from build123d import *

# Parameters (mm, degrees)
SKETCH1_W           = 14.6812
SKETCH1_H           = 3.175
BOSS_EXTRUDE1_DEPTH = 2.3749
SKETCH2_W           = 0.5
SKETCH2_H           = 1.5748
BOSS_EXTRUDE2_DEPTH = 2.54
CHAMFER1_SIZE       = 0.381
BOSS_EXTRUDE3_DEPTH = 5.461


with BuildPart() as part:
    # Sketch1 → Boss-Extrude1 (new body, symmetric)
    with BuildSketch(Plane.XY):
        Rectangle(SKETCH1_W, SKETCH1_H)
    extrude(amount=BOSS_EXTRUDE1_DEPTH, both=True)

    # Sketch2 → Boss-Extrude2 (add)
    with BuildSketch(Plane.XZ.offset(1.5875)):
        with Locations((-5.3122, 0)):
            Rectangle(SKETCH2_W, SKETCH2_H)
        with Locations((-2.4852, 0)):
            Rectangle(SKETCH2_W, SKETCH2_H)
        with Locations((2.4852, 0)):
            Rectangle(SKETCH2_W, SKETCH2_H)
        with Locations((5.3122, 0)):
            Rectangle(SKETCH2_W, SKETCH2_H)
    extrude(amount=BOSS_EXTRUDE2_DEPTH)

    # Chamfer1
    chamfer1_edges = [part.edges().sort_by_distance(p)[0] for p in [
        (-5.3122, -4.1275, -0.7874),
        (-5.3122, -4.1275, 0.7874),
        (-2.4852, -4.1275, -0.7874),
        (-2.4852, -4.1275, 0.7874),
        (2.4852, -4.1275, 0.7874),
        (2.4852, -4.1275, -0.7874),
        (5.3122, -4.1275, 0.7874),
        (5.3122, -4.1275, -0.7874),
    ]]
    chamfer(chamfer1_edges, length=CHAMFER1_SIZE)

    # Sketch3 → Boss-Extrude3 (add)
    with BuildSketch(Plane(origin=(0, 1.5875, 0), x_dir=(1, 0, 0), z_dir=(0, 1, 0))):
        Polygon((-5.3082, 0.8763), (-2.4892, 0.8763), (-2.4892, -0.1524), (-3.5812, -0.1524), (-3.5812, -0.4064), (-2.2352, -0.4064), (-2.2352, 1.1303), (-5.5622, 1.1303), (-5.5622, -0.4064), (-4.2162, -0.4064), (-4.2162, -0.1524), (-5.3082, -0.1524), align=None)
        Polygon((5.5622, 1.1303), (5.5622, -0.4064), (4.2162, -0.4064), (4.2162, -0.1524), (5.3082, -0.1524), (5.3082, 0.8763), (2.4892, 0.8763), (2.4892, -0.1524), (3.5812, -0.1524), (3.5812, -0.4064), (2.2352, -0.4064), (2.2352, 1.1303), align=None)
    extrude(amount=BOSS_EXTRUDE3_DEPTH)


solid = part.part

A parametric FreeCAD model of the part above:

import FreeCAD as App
import Part
import Sketcher

V = App.Vector
Q = App.Units.Quantity


def edges_at(feature, points):
    """Names of the edges that pass closest to the given points."""
    edges = feature.Shape.Edges
    near = lambda p: min(range(len(edges)), key=lambda i: edges[i].distToShape(Part.Vertex(*p))[0])
    return sorted({f"Edge{near(p) + 1}" for p in points})


def add_polygon(sketch, points):
    """Adds a closed chain of lines whose ends are joined by coincident constraints."""
    first, n = sketch.GeometryCount, len(points)
    for a, b in zip(points, points[1:] + points[:1]):
        sketch.addGeometry(Part.LineSegment(App.Vector(*a, 0), App.Vector(*b, 0)), False)
    for i in range(n):
        sketch.addConstraint(Sketcher.Constraint("Coincident", first + i, 2, first + (i + 1) % n, 1))

doc = App.newDocument("Part")
body = doc.addObject("PartDesign::Body", "Body")

# Sketch on XY plane
sketch1 = body.newObject("Sketcher::SketchObject", "Sketch")
sketch1.AttachmentSupport = (doc.getObject("XY_Plane"), [""])
sketch1.MapMode = "FlatFace"
add_polygon(sketch1, [(-7.3, 1.6), (-7.3, -1.6), (7.3, -1.6), (7.3, 1.6)])  # lines 0-3
sketch1.addConstraint([
    Sketcher.Constraint("Vertical", 0),
    Sketcher.Constraint("Horizontal", 1),
    Sketcher.Constraint("Vertical", 2),
    Sketcher.Constraint("Horizontal", 3),
    Sketcher.Constraint("Symmetric", 0, 2, 2, 2, -1, 1),
    Sketcher.Constraint("DistanceX", 1, 1, 1, 2, Q("0.578 in")),
    Sketcher.Constraint("DistanceY", 0, 2, 0, 1, Q("0.125 in")),
])
pad1 = body.newObject("PartDesign::Pad", "Pad")
pad1.Profile = sketch1
pad1.Length = Q("0.187 in")
pad1.Midplane = True

# Sketch on XZ plane
sketch2 = body.newObject("Sketcher::SketchObject", "Sketch001")
sketch2.AttachmentSupport = (doc.getObject("XZ_Plane"), [""])
sketch2.MapMode = "FlatFace"
sketch2.AttachmentOffset = App.Placement(V(0, 0, 0.0625 * 25.4), App.Rotation())
add_polygon(sketch2, [(-5.6, 0.8), (-5.6, -0.8), (-5.1, -0.8), (-5.1, 0.8)])  # lines 0-3
add_polygon(sketch2, [(-2.7, 0.8), (-2.7, -0.8), (-2.2, -0.8), (-2.2, 0.8)])  # lines 4-7
add_polygon(sketch2, [(2.2, 0.8), (2.2, -0.8), (2.7, -0.8), (2.7, 0.8)])  # lines 8-11
add_polygon(sketch2, [(5.1, 0.8), (5.1, -0.8), (5.6, -0.8), (5.6, 0.8)])  # lines 12-15
sketch2.addConstraint([
    Sketcher.Constraint("Vertical", 0),
    Sketcher.Constraint("Horizontal", 1),
    Sketcher.Constraint("Vertical", 2),
    Sketcher.Constraint("Horizontal", 3),
    Sketcher.Constraint("Vertical", 4),
    Sketcher.Constraint("Horizontal", 5),
    Sketcher.Constraint("Vertical", 6),
    Sketcher.Constraint("Horizontal", 7),
    Sketcher.Constraint("Vertical", 8),
    Sketcher.Constraint("Horizontal", 9),
    Sketcher.Constraint("Vertical", 10),
    Sketcher.Constraint("Horizontal", 11),
    Sketcher.Constraint("Vertical", 12),
    Sketcher.Constraint("Horizontal", 13),
    Sketcher.Constraint("Vertical", 14),
    Sketcher.Constraint("Horizontal", 15),
    Sketcher.Constraint("Symmetric", 6, 2, 8, 2, -1, 1),
    Sketcher.Constraint("Symmetric", 4, 2, 10, 2, -1, 1),
    Sketcher.Constraint("Symmetric", 2, 2, 12, 2, -1, 1),
    Sketcher.Constraint("Symmetric", 0, 2, 14, 2, -1, 1),
    Sketcher.Constraint("Horizontal", 1, 2, 4, 2),
    Sketcher.Constraint("Horizontal", 3, 2, 6, 2),
    Sketcher.Constraint("Horizontal", 5, 2, 8, 2),
    Sketcher.Constraint("Equal", 3, 5),
    Sketcher.Constraint("DistanceY", 0, 2, 0, 1, Q("0.062 in")),
    Sketcher.Constraint("DistanceX", 5, 2, -1, 1, Q("0.088 in")),
    Sketcher.Constraint("DistanceX", 1, 1, 1, 2, 0.5),
    Sketcher.Constraint("DistanceX", 0, 2, -1, 1, 5.5622),
])
pad2 = body.newObject("PartDesign::Pad", "Pad001")
pad2.Profile = sketch2
pad2.Length = Q("0.1 in")
doc.recompute()

chamfer = body.newObject("PartDesign::Chamfer", "Chamfer")
chamfer.Base = (pad2, edges_at(pad2, [
    (-5.312, -4.128, -0.787),
    (-5.312, -4.128, 0.787),
    (-2.485, -4.128, -0.787),
    (-2.485, -4.128, 0.787),
    (2.485, -4.128, 0.787),
    (2.485, -4.128, -0.787),
    (5.312, -4.128, 0.787),
    (5.312, -4.128, -0.787),
]))
chamfer.Size = Q("0.015 in")

# Sketch on XZ plane
sketch3 = body.newObject("Sketcher::SketchObject", "Sketch002")
sketch3.AttachmentSupport = (doc.getObject("XZ_Plane"), [""])
sketch3.MapMode = "FlatFace"
sketch3.AttachmentOffset = App.Placement(V(0, 0, -0.0625 * 25.4), App.Rotation())
add_polygon(sketch3, [(-5.31, -0.88), (-2.49, -0.88), (-2.49, 0.15), (-3.58, 0.15), (-3.58, 0.41), (-2.24, 0.41), (-2.24, -1.13), (-5.56, -1.13), (-5.56, 0.41), (-4.22, 0.41), (-4.22, 0.15), (-5.31, 0.15)])  # lines 0-11
add_polygon(sketch3, [(5.56, 0.41), (5.56, -1.13), (2.24, -1.13), (2.24, 0.41), (3.58, 0.41), (3.58, 0.15), (2.49, 0.15), (2.49, -0.88), (5.31, -0.88), (5.31, 0.15), (4.22, 0.15), (4.22, 0.41)])  # lines 12-23
sketch3.addConstraint([
    Sketcher.Constraint("Horizontal", 0),
    Sketcher.Constraint("Vertical", 1),
    Sketcher.Constraint("Horizontal", 2),
    Sketcher.Constraint("Vertical", 3),
    Sketcher.Constraint("Horizontal", 4),
    Sketcher.Constraint("Vertical", 5),
    Sketcher.Constraint("Horizontal", 6),
    Sketcher.Constraint("Vertical", 7),
    Sketcher.Constraint("Horizontal", 8),
    Sketcher.Constraint("Vertical", 9),
    Sketcher.Constraint("Horizontal", 10),
    Sketcher.Constraint("Vertical", 11),
    Sketcher.Constraint("Vertical", 12),
    Sketcher.Constraint("Horizontal", 13),
    Sketcher.Constraint("Vertical", 14),
    Sketcher.Constraint("Horizontal", 15),
    Sketcher.Constraint("Vertical", 16),
    Sketcher.Constraint("Horizontal", 17),
    Sketcher.Constraint("Vertical", 18),
    Sketcher.Constraint("Horizontal", 19),
    Sketcher.Constraint("Vertical", 20),
    Sketcher.Constraint("Horizontal", 21),
    Sketcher.Constraint("Vertical", 22),
    Sketcher.Constraint("Horizontal", 23),
    Sketcher.Constraint("Symmetric", 6, 2, 12, 2, -2),
    Sketcher.Constraint("Symmetric", 4, 2, 14, 2, -2),
    Sketcher.Constraint("Symmetric", 2, 2, 16, 2, -2),
    Sketcher.Constraint("Symmetric", 0, 2, 18, 2, -2),
    Sketcher.Constraint("Symmetric", 10, 2, 20, 2, -2),
    Sketcher.Constraint("Symmetric", 8, 2, 22, 2, -2),
    Sketcher.Constraint("Horizontal", 4, 2, 7, 2),
    Sketcher.Constraint("Horizontal", 2, 2, 9, 2),
    Sketcher.Constraint("Equal", 4, 8),
    Sketcher.Constraint("Equal", 2, 10),
    Sketcher.Constraint("DistanceY", 3, 1, 3, 2, Q("0.01 in")),
    Sketcher.Constraint("DistanceX", 1, 2, 4, 2, Q("0.01 in")),
    Sketcher.Constraint("DistanceY", 5, 2, 0, 2, Q("0.01 in")),
    Sketcher.Constraint("DistanceY", 1, 1, 1, 2, Q("0.0405 in")),
    Sketcher.Constraint("DistanceX", 0, 2, -1, 1, Q("0.098 in")),
    Sketcher.Constraint("DistanceY", -1, 1, 1, 2, Q("0.006 in")),
    Sketcher.Constraint("DistanceX", 8, 2, 3, 2, Q("0.025 in")),
    Sketcher.Constraint("DistanceX", 0, 1, 0, 2, 2.819),
])
pad3 = body.newObject("PartDesign::Pad", "Pad002")
pad3.Profile = sketch3
pad3.Length = Q("0.215 in")
pad3.Reversed = True

doc.recompute()
